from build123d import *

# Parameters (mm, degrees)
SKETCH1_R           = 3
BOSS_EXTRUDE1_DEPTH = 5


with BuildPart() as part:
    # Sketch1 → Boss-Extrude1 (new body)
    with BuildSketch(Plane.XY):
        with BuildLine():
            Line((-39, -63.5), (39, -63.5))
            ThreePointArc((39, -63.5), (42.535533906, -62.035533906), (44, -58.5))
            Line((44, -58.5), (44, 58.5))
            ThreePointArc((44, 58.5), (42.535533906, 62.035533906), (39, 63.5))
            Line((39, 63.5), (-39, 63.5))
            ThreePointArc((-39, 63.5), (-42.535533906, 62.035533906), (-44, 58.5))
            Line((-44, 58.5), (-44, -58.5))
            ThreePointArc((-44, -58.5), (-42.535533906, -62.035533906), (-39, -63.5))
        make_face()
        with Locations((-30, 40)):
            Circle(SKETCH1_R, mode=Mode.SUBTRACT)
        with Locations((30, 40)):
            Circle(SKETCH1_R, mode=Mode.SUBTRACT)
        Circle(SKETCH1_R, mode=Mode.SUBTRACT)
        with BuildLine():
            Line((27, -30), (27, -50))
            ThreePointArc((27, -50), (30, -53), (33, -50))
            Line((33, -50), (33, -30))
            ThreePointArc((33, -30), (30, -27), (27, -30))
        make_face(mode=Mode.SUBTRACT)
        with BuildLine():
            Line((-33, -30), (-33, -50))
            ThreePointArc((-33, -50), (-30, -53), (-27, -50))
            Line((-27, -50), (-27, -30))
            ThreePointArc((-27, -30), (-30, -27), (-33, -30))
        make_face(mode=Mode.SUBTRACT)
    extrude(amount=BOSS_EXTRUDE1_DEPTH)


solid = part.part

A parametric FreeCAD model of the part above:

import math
import FreeCAD as App
import Part
import Sketcher

doc = App.newDocument("Part")
body = doc.addObject("PartDesign::Body", "Body")

# Sketch on XY plane
sketch1 = body.newObject("Sketcher::SketchObject", "Sketch")
sketch1.AttachmentSupport = (doc.getObject("XY_Plane"), [""])
sketch1.MapMode = "FlatFace"
sketch1.addGeometry(Part.LineSegment(App.Vector(-39, -63.5, 0), App.Vector(39, -63.5, 0)), False)
sketch1.addGeometry(Part.ArcOfCircle(Part.Circle(App.Vector(39, -58.5, 0), App.Vector(0, 0, 1), 5), math.radians(-90), math.radians(0)), False)
sketch1.addGeometry(Part.LineSegment(App.Vector(44, -58.5, 0), App.Vector(44, 58.5, 0)), False)
sketch1.addGeometry(Part.ArcOfCircle(Part.Circle(App.Vector(39, 58.5, 0), App.Vector(0, 0, 1), 5), math.radians(0), math.radians(90)), False)
sketch1.addGeometry(Part.LineSegment(App.Vector(39, 63.5, 0), App.Vector(-39, 63.5, 0)), False)
sketch1.addGeometry(Part.ArcOfCircle(Part.Circle(App.Vector(-39, 58.5, 0), App.Vector(0, 0, 1), 5), math.radians(90), math.radians(180)), False)
sketch1.addGeometry(Part.LineSegment(App.Vector(-44, 58.5, 0), App.Vector(-44, -58.5, 0)), False)
sketch1.addGeometry(Part.ArcOfCircle(Part.Circle(App.Vector(-39, -58.5, 0), App.Vector(0, 0, 1), 5), math.radians(180), math.radians(270)), False)
sketch1.addGeometry(Part.LineSegment(App.Vector(-33, -50, 0), App.Vector(-33, -30, 0)), False)
sketch1.addGeometry(Part.ArcOfCircle(Part.Circle(App.Vector(-30, -30, 0), App.Vector(0, 0, 1), 3), math.radians(0), math.radians(180)), False)
sketch1.addGeometry(Part.LineSegment(App.Vector(-27, -30, 0), App.Vector(-27, -50, 0)), False)
sketch1.addGeometry(Part.ArcOfCircle(Part.Circle(App.Vector(-30, -50, 0), App.Vector(0, 0, 1), 3), math.radians(180), math.radians(360)), False)
sketch1.addGeometry(Part.LineSegment(App.Vector(27, -50, 0), App.Vector(27, -30, 0)), False)
sketch1.addGeometry(Part.ArcOfCircle(Part.Circle(App.Vector(30, -30, 0), App.Vector(0, 0, 1), 3), math.radians(0), math.radians(180)), False)
sketch1.addGeometry(Part.LineSegment(App.Vector(33, -30, 0), App.Vector(33, -50, 0)), False)
sketch1.addGeometry(Part.ArcOfCircle(Part.Circle(App.Vector(30, -50, 0), App.Vector(0, 0, 1), 3), math.radians(180), math.radians(360)), False)
sketch1.addGeometry(Part.Circle(App.Vector(-30, 40, 0), App.Vector(0, 0, 1), 3), False)
sketch1.addGeometry(Part.Circle(App.Vector(0, 0, 0), App.Vector(0, 0, 1), 3), False)
sketch1.addGeometry(Part.Circle(App.Vector(30, 40, 0), App.Vector(0, 0, 1), 3), False)
sketch1.addConstraint(Sketcher.Constraint("Tangent", 0, 2, 1, 1))
sketch1.addConstraint(Sketcher.Constraint("Tangent", 1, 2, 2, 1))
sketch1.addConstraint(Sketcher.Constraint("Tangent", 2, 2, 3, 1))
sketch1.addConstraint(Sketcher.Constraint("Tangent", 3, 2, 4, 1))
sketch1.addConstraint(Sketcher.Constraint("Tangent", 4, 2, 5, 1))
sketch1.addConstraint(Sketcher.Constraint("Tangent", 5, 2, 6, 1))
sketch1.addConstraint(Sketcher.Constraint("Tangent", 6, 2, 7, 1))
sketch1.addConstraint(Sketcher.Constraint("Tangent", 7, 2, 0, 1))
sketch1.addConstraint(Sketcher.Constraint("Tangent", 8, 2, 9, 2))
sketch1.addConstraint(Sketcher.Constraint("Tangent", 9, 1, 10, 1))
sketch1.addConstraint(Sketcher.Constraint("Tangent", 10, 2, 11, 2))
sketch1.addConstraint(Sketcher.Constraint("Tangent", 11, 1, 8, 1))
sketch1.addConstraint(Sketcher.Constraint("Tangent", 12, 2, 13, 2))
sketch1.addConstraint(Sketcher.Constraint("Tangent", 13, 1, 14, 1))
sketch1.addConstraint(Sketcher.Constraint("Tangent", 14, 2, 15, 2))
sketch1.addConstraint(Sketcher.Constraint("Tangent", 15, 1, 12, 1))
sketch1.addConstraint(Sketcher.Constraint("Horizontal", 0))
sketch1.addConstraint(Sketcher.Constraint("Vertical", 2))
sketch1.addConstraint(Sketcher.Constraint("Horizontal", 4))
sketch1.addConstraint(Sketcher.Constraint("Vertical", 6))
sketch1.addConstraint(Sketcher.Constraint("Vertical", 8))
sketch1.addConstraint(Sketcher.Constraint("Vertical", 10))
sketch1.addConstraint(Sketcher.Constraint("Vertical", 12))
sketch1.addConstraint(Sketcher.Constraint("Vertical", 14))
sketch1.addConstraint(Sketcher.Constraint("Coincident", 17, 3, -1, 1))
sketch1.addConstraint(Sketcher.Constraint("Equal", 1, 3))
sketch1.addConstraint(Sketcher.Constraint("Equal", 3, 5))
sketch1.addConstraint(Sketcher.Constraint("Equal", 5, 7))
sketch1.addConstraint(Sketcher.Constraint("Equal", 11, 13))
sketch1.addConstraint(Sketcher.Constraint("Equal", 15, 16))
sketch1.addConstraint(Sketcher.Constraint("Equal", 16, 17))
sketch1.addConstraint(Sketcher.Constraint("Equal", 17, 18))
sketch1.addConstraint(Sketcher.Constraint("Symmetric", 1, 3, 5, 3, -1, 1))
sketch1.addConstraint(Sketcher.Constraint("Symmetric", 9, 3, 13, 3, -2))
sketch1.addConstraint(Sketcher.Constraint("Symmetric", 16, 3, 18, 3, -2))
sketch1.addConstraint(Sketcher.Constraint("Horizontal", 11, 3, 15, 3))
sketch1.addConstraint(Sketcher.Constraint("Vertical", 11, 3, 16, 3))
sketch1.addConstraint(Sketcher.Constraint("Diameter", 16, 6.0))
sketch1.addConstraint(Sketcher.Constraint("Radius", 1, 5.0))
sketch1.addConstraint(Sketcher.Constraint("DistanceX", 0, 1, 0, 2, 78.0))
sketch1.addConstraint(Sketcher.Constraint("DistanceY", 2, 1, 2, 2, 117.0))
sketch1.addConstraint(Sketcher.Constraint("DistanceY", 8, 1, 8, 2, 20.0))
sketch1.addConstraint(Sketcher.Constraint("DistanceX", 9, 3, -1, 1, 30.0))
sketch1.addConstraint(Sketcher.Constraint("DistanceY", 9, 3, -1, 1, 30.0))
sketch1.addConstraint(Sketcher.Constraint("DistanceY", -1, 1, 16, 3, 40.0))
pad1 = body.newObject("PartDesign::Pad", "Pad")
pad1.Profile = sketch1
pad1.Length = 5

doc.recompute()
